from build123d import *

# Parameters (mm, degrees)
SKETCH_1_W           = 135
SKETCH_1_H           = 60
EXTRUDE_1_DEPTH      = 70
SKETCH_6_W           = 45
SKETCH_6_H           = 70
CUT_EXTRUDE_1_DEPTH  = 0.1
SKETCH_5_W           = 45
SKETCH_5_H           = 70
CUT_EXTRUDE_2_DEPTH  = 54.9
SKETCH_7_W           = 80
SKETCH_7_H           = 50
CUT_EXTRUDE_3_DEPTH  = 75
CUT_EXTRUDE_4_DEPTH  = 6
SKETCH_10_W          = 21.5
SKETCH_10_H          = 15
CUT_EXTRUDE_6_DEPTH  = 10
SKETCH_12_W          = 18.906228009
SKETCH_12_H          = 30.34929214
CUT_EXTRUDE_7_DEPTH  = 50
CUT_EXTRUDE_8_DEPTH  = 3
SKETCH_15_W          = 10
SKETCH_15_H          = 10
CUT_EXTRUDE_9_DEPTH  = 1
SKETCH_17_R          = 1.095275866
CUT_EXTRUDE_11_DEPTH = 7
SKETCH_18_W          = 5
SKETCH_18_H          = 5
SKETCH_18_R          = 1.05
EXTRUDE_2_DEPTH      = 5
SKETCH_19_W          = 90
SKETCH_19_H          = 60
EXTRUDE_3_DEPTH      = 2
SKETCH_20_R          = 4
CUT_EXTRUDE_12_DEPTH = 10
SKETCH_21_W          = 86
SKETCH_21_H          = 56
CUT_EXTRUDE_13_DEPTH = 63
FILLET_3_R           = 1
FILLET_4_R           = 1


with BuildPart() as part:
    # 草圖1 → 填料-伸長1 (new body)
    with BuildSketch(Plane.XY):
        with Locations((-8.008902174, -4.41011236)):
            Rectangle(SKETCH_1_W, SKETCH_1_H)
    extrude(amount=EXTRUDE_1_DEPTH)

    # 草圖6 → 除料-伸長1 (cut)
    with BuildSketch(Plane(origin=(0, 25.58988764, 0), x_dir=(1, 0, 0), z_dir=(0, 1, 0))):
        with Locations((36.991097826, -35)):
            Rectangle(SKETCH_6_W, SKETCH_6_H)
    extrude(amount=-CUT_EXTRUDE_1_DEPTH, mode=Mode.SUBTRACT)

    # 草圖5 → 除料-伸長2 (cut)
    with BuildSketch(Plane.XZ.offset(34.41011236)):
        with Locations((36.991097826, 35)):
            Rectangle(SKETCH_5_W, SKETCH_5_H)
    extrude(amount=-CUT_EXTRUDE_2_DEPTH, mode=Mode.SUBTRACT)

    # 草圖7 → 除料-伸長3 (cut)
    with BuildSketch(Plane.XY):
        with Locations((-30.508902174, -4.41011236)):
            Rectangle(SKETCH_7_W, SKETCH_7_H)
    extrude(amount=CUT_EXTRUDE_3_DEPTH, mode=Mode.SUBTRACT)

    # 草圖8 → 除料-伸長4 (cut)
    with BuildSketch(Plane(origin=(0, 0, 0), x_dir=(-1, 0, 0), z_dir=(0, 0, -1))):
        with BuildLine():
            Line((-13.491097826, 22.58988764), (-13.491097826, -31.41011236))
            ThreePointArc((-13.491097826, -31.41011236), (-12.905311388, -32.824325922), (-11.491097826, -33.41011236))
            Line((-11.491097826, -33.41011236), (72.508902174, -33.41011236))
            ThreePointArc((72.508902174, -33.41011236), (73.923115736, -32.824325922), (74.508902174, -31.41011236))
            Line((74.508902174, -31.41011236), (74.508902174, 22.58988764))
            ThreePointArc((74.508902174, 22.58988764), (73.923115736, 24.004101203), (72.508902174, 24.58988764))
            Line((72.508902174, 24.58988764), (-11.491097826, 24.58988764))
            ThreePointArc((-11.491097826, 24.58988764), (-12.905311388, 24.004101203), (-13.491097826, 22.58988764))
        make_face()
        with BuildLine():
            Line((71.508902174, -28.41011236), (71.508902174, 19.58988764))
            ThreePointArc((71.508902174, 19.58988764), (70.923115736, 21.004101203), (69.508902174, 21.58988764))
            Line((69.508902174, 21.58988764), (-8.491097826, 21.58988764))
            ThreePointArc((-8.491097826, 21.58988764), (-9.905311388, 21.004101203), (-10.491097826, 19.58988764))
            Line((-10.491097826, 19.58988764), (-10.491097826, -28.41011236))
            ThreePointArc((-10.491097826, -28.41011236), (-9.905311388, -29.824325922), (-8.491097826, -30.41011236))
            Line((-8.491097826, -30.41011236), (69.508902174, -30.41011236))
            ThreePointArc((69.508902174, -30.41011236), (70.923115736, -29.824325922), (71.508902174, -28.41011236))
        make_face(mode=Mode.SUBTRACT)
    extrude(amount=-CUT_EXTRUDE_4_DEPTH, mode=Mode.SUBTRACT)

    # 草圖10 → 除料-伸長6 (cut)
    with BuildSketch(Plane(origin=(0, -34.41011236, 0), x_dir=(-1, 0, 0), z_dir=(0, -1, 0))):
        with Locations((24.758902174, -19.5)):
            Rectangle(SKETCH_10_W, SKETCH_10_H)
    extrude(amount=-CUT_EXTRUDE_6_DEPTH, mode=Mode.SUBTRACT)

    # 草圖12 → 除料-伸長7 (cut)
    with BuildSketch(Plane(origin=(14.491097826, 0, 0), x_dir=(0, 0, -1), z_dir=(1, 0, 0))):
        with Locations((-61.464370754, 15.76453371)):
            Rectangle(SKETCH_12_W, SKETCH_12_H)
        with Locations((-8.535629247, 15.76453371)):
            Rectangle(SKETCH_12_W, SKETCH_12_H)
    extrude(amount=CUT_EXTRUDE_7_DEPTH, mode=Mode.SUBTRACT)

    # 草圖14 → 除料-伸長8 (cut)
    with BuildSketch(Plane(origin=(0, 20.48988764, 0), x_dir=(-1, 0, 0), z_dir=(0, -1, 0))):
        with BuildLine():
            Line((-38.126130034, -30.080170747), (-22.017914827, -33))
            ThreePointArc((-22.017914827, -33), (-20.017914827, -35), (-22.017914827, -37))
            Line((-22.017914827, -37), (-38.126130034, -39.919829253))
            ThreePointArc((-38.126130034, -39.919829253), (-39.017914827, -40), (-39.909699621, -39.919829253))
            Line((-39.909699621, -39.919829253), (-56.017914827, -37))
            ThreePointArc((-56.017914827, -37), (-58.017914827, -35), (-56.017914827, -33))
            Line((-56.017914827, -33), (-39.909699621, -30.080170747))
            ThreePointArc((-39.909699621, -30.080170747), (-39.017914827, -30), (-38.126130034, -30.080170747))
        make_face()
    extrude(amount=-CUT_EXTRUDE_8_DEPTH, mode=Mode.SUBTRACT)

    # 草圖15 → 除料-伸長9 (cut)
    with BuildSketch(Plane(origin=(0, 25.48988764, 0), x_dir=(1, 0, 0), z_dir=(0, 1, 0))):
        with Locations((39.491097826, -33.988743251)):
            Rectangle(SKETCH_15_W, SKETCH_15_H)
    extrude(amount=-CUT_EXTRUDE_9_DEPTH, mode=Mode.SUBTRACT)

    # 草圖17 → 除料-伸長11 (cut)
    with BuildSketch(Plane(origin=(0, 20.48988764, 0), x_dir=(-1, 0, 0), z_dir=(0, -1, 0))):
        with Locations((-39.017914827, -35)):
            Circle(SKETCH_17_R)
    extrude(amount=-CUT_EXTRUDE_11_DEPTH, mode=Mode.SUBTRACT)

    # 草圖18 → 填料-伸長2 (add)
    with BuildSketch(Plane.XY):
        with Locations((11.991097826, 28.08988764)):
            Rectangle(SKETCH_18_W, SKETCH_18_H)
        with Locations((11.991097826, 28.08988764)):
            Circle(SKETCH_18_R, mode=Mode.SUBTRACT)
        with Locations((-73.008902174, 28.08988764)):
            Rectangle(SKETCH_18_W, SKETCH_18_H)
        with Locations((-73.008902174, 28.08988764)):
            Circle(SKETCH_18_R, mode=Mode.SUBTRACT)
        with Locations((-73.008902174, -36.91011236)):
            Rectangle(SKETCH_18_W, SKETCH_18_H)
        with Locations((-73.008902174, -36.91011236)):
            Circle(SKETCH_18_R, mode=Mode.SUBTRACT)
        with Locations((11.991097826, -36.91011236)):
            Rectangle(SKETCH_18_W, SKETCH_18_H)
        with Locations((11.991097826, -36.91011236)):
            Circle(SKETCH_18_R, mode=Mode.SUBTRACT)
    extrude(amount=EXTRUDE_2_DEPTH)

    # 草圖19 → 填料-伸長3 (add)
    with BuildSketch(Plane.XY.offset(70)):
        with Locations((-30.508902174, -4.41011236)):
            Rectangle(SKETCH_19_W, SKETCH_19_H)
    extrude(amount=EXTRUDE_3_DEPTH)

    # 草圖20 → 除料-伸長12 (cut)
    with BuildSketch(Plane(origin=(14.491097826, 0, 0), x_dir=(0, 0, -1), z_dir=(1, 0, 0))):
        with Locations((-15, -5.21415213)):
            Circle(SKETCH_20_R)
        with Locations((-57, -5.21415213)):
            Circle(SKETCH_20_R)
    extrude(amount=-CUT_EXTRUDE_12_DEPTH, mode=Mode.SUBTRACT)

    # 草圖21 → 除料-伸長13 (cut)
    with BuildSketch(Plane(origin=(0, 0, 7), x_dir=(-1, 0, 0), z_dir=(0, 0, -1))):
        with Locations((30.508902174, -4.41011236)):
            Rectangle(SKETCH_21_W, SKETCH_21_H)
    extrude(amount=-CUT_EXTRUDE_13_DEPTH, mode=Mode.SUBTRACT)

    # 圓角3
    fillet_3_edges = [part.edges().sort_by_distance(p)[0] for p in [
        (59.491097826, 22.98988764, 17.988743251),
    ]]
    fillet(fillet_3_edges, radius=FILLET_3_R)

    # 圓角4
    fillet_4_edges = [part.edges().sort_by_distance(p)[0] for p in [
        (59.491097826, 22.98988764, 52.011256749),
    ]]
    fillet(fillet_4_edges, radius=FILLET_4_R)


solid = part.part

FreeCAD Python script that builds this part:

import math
import FreeCAD as App
import Part
import Sketcher
Q = App.Units.Quantity


def edges_at(feature, points):
    """Names of the edges that pass closest to the given points."""
    edges = feature.Shape.Edges
    near = lambda p: min(range(len(edges)), key=lambda i: edges[i].distToShape(Part.Vertex(*p))[0])
    return sorted({f"Edge{near(p) + 1}" for p in points})

doc = App.newDocument("Part")
body = doc.addObject("PartDesign::Body", "Body")

# Sketch on XY plane
sketch1 = doc.addObject("Sketcher::SketchObject", "Sketch")
body.addObject(sketch1)
sketch1.AttachmentSupport = (doc.XY_Plane, [""])
sketch1.MapMode = "FlatFace"
sketch1.addGeometry(Part.LineSegment(App.Vector(-76, 26, 0), App.Vector(-76, -34, 0)), False)
sketch1.addGeometry(Part.LineSegment(App.Vector(-76, -34, 0), App.Vector(59, -34, 0)), False)
sketch1.addGeometry(Part.LineSegment(App.Vector(59, -34, 0), App.Vector(59, 26, 0)), False)
sketch1.addGeometry(Part.LineSegment(App.Vector(59, 26, 0), App.Vector(-76, 26, 0)), False)
sketch1.addConstraint(Sketcher.Constraint("Coincident", 0, 2, 1, 1))
sketch1.addConstraint(Sketcher.Constraint("Coincident", 1, 2, 2, 1))
sketch1.addConstraint(Sketcher.Constraint("Coincident", 2, 2, 3, 1))
sketch1.addConstraint(Sketcher.Constraint("Coincident", 3, 2, 0, 1))
sketch1.addConstraint(Sketcher.Constraint("Vertical", 0))
sketch1.addConstraint(Sketcher.Constraint("Horizontal", 1))
sketch1.addConstraint(Sketcher.Constraint("Vertical", 2))
sketch1.addConstraint(Sketcher.Constraint("Horizontal", 3))
sketch1.addConstraint(Sketcher.Constraint("DistanceX", 1, 1, 1, 2, Q("135 mm")))
sketch1.addConstraint(Sketcher.Constraint("DistanceY", 0, 2, 0, 1, Q("60 mm")))
sketch1.addConstraint(Sketcher.Constraint("DistanceX", 0, 2, -1, 1, Q("75.508902 mm")))
sketch1.addConstraint(Sketcher.Constraint("DistanceY", 0, 2, -1, 1, Q("34.410112 mm")))
pad1 = doc.addObject("PartDesign::Pad", "Pad")
body.addObject(pad1)
pad1.Profile = sketch1
pad1.Length = 70

# Sketch on XZ plane
sketch2 = doc.addObject("Sketcher::SketchObject", "Sketch001")
body.addObject(sketch2)
sketch2.AttachmentSupport = (doc.XZ_Plane, [""])
sketch2.MapMode = "FlatFace"
sketch2.AttachmentOffset = App.Placement(App.Vector(0, 0, -25.589888), App.Rotation())
sketch2.addGeometry(Part.LineSegment(App.Vector(14, 0, 0), App.Vector(14, 70, 0)), False)
sketch2.addGeometry(Part.LineSegment(App.Vector(14, 70, 0), App.Vector(59, 70, 0)), False)
sketch2.addGeometry(Part.LineSegment(App.Vector(59, 70, 0), App.Vector(59, 0, 0)), False)
sketch2.addGeometry(Part.LineSegment(App.Vector(59, 0, 0), App.Vector(14, 0, 0)), False)
sketch2.addConstraint(Sketcher.Constraint("Coincident", 0, 2, 1, 1))
sketch2.addConstraint(Sketcher.Constraint("Coincident", 1, 2, 2, 1))
sketch2.addConstraint(Sketcher.Constraint("Coincident", 2, 2, 3, 1))
sketch2.addConstraint(Sketcher.Constraint("Coincident", 3, 2, 0, 1))
sketch2.addConstraint(Sketcher.Constraint("Vertical", 0))
sketch2.addConstraint(Sketcher.Constraint("Horizontal", 1))
sketch2.addConstraint(Sketcher.Constraint("Vertical", 2))
sketch2.addConstraint(Sketcher.Constraint("Horizontal", 3))
sketch2.addConstraint(Sketcher.Constraint("PointOnObject", 2, 2, -1))
sketch2.addConstraint(Sketcher.Constraint("DistanceX", 1, 1, 1, 2, Q("45 mm")))
sketch2.addConstraint(Sketcher.Constraint("DistanceY", 0, 1, 0, 2, Q("70 mm")))
sketch2.addConstraint(Sketcher.Constraint("DistanceX", -1, 1, 0, 2, Q("14.491098 mm")))
pocket1 = doc.addObject("PartDesign::Pocket", "Pocket")
body.addObject(pocket1)
pocket1.Profile = sketch2
pocket1.Length = 0.1
pocket1.Reversed = True

# Sketch on XZ plane
sketch3 = doc.addObject("Sketcher::SketchObject", "Sketch002")
body.addObject(sketch3)
sketch3.AttachmentSupport = (doc.XZ_Plane, [""])
sketch3.MapMode = "FlatFace"
sketch3.AttachmentOffset = App.Placement(App.Vector(0, 0, 34.410112), App.Rotation())
sketch3.addGeometry(Part.LineSegment(App.Vector(14, 70, 0), App.Vector(14, 0, 0)), False)
sketch3.addGeometry(Part.LineSegment(App.Vector(14, 0, 0), App.Vector(59, 0, 0)), False)
sketch3.addGeometry(Part.LineSegment(App.Vector(59, 0, 0), App.Vector(59, 70, 0)), False)
sketch3.addGeometry(Part.LineSegment(App.Vector(59, 70, 0), App.Vector(14, 70, 0)), False)
sketch3.addConstraint(Sketcher.Constraint("Coincident", 0, 2, 1, 1))
sketch3.addConstraint(Sketcher.Constraint("Coincident", 1, 2, 2, 1))
sketch3.addConstraint(Sketcher.Constraint("Coincident", 2, 2, 3, 1))
sketch3.addConstraint(Sketcher.Constraint("Coincident", 3, 2, 0, 1))
sketch3.addConstraint(Sketcher.Constraint("Vertical", 0))
sketch3.addConstraint(Sketcher.Constraint("Horizontal", 1))
sketch3.addConstraint(Sketcher.Constraint("Vertical", 2))
sketch3.addConstraint(Sketcher.Constraint("Horizontal", 3))
sketch3.addConstraint(Sketcher.Constraint("PointOnObject", 0, 2, -1))
sketch3.addConstraint(Sketcher.Constraint("DistanceX", 1, 1, 1, 2, Q("45 mm")))
sketch3.addConstraint(Sketcher.Constraint("DistanceY", 0, 2, 0, 1, Q("70 mm")))
sketch3.addConstraint(Sketcher.Constraint("DistanceX", -1, 1, 0, 2, Q("14.491098 mm")))
pocket2 = doc.addObject("PartDesign::Pocket", "Pocket001")
body.addObject(pocket2)
pocket2.Profile = sketch3
pocket2.Length = 54.9

# Sketch on XY plane
sketch4 = doc.addObject("Sketcher::SketchObject", "Sketch003")
body.addObject(sketch4)
sketch4.AttachmentSupport = (doc.XY_Plane, [""])
sketch4.MapMode = "FlatFace"
sketch4.addGeometry(Part.LineSegment(App.Vector(-71, 21, 0), App.Vector(-71, -29, 0)), False)
sketch4.addGeometry(Part.LineSegment(App.Vector(-71, -29, 0), App.Vector(9, -29, 0)), False)
sketch4.addGeometry(Part.LineSegment(App.Vector(9, -29, 0), App.Vector(9, 21, 0)), False)
sketch4.addGeometry(Part.LineSegment(App.Vector(9, 21, 0), App.Vector(-71, 21, 0)), False)
sketch4.addConstraint(Sketcher.Constraint("Coincident", 0, 2, 1, 1))
sketch4.addConstraint(Sketcher.Constraint("Coincident", 1, 2, 2, 1))
sketch4.addConstraint(Sketcher.Constraint("Coincident", 2, 2, 3, 1))
sketch4.addConstraint(Sketcher.Constraint("Coincident", 3, 2, 0, 1))
sketch4.addConstraint(Sketcher.Constraint("Vertical", 0))
sketch4.addConstraint(Sketcher.Constraint("Horizontal", 1))
sketch4.addConstraint(Sketcher.Constraint("Vertical", 2))
sketch4.addConstraint(Sketcher.Constraint("Horizontal", 3))
sketch4.addConstraint(Sketcher.Constraint("DistanceX", 1, 1, 1, 2, Q("80 mm")))
sketch4.addConstraint(Sketcher.Constraint("DistanceY", 0, 2, 0, 1, Q("50 mm")))
sketch4.addConstraint(Sketcher.Constraint("DistanceX", 0, 2, -1, 1, Q("70.508902 mm")))
sketch4.addConstraint(Sketcher.Constraint("DistanceY", 0, 2, -1, 1, Q("29.410112 mm")))
pocket3 = doc.addObject("PartDesign::Pocket", "Pocket002")
body.addObject(pocket3)
pocket3.Profile = sketch4
pocket3.Length = 75
pocket3.Reversed = True

# Sketch on XY plane
sketch5 = doc.addObject("Sketcher::SketchObject", "Sketch004")
body.addObject(sketch5)
sketch5.AttachmentSupport = (doc.XY_Plane, [""])
sketch5.MapMode = "FlatFace"
sketch5.addGeometry(Part.LineSegment(App.Vector(13.5, 22.6, 0), App.Vector(13.5, -31.4, 0)), False)
sketch5.addGeometry(Part.ArcOfCircle(Part.Circle(App.Vector(11.5, -31.4, 0), App.Vector(0, 0, 1), 2), math.radians(-90), math.radians(0)), False)
sketch5.addGeometry(Part.LineSegment(App.Vector(11.5, -33.4, 0), App.Vector(-72.5, -33.4, 0)), False)
sketch5.addGeometry(Part.ArcOfCircle(Part.Circle(App.Vector(-72.5, -31.4, 0), App.Vector(0, 0, 1), 2), math.radians(-180), math.radians(-90)), False)
sketch5.addGeometry(Part.LineSegment(App.Vector(-74.5, -31.4, 0), App.Vector(-74.5, 22.6, 0)), False)
sketch5.addGeometry(Part.ArcOfCircle(Part.Circle(App.Vector(-72.5, 22.6, 0), App.Vector(0, 0, 1), 2), math.radians(90), math.radians(180)), False)
sketch5.addGeometry(Part.LineSegment(App.Vector(-72.5, 24.6, 0), App.Vector(11.5, 24.6, 0)), False)
sketch5.addGeometry(Part.ArcOfCircle(Part.Circle(App.Vector(11.5, 22.6, 0), App.Vector(0, 0, 1), 2), math.radians(0), math.radians(90)), False)
sketch5.addGeometry(Part.LineSegment(App.Vector(-71.5, 19.6, 0), App.Vector(-71.5, -28.4, 0)), False)
sketch5.addGeometry(Part.ArcOfCircle(Part.Circle(App.Vector(-69.5, -28.4, 0), App.Vector(0, 0, 1), 2), math.radians(-180), math.radians(-90)), False)
sketch5.addGeometry(Part.LineSegment(App.Vector(-69.5, -30.4, 0), App.Vector(8.5, -30.4, 0)), False)
sketch5.addGeometry(Part.ArcOfCircle(Part.Circle(App.Vector(8.5, -28.4, 0), App.Vector(0, 0, 1), 2), math.radians(-90), math.radians(0)), False)
sketch5.addGeometry(Part.LineSegment(App.Vector(10.5, -28.4, 0), App.Vector(10.5, 19.6, 0)), False)
sketch5.addGeometry(Part.ArcOfCircle(Part.Circle(App.Vector(8.5, 19.6, 0), App.Vector(0, 0, 1), 2), math.radians(0), math.radians(90)), False)
sketch5.addGeometry(Part.LineSegment(App.Vector(8.5, 21.6, 0), App.Vector(-69.5, 21.6, 0)), False)
sketch5.addGeometry(Part.ArcOfCircle(Part.Circle(App.Vector(-69.5, 19.6, 0), App.Vector(0, 0, 1), 2), math.radians(90), math.radians(180)), False)
sketch5.addConstraint(Sketcher.Constraint("Tangent", 0, 2, 1, 2))
sketch5.addConstraint(Sketcher.Constraint("Tangent", 1, 1, 2, 1))
sketch5.addConstraint(Sketcher.Constraint("Tangent", 2, 2, 3, 2))
sketch5.addConstraint(Sketcher.Constraint("Tangent", 3, 1, 4, 1))
sketch5.addConstraint(Sketcher.Constraint("Tangent", 4, 2, 5, 2))
sketch5.addConstraint(Sketcher.Constraint("Tangent", 5, 1, 6, 1))
sketch5.addConstraint(Sketcher.Constraint("Tangent", 6, 2, 7, 2))
sketch5.addConstraint(Sketcher.Constraint("Tangent", 7, 1, 0, 1))
sketch5.addConstraint(Sketcher.Constraint("Tangent", 8, 2, 9, 1))
sketch5.addConstraint(Sketcher.Constraint("Tangent", 9, 2, 10, 1))
sketch5.addConstraint(Sketcher.Constraint("Tangent", 10, 2, 11, 1))
sketch5.addConstraint(Sketcher.Constraint("Tangent", 11, 2, 12, 1))
sketch5.addConstraint(Sketcher.Constraint("Tangent", 12, 2, 13, 1))
sketch5.addConstraint(Sketcher.Constraint("Tangent", 13, 2, 14, 1))
sketch5.addConstraint(Sketcher.Constraint("Tangent", 14, 2, 15, 1))
sketch5.addConstraint(Sketcher.Constraint("Tangent", 15, 2, 8, 1))
sketch5.addConstraint(Sketcher.Constraint("Vertical", 0))
sketch5.addConstraint(Sketcher.Constraint("Horizontal", 2))
sketch5.addConstraint(Sketcher.Constraint("Vertical", 4))
sketch5.addConstraint(Sketcher.Constraint("Horizontal", 6))
sketch5.addConstraint(Sketcher.Constraint("Vertical", 8))
sketch5.addConstraint(Sketcher.Constraint("Horizontal", 10))
sketch5.addConstraint(Sketcher.Constraint("Vertical", 12))
sketch5.addConstraint(Sketcher.Constraint("Horizontal", 14))
sketch5.addConstraint(Sketcher.Constraint("Equal", 1, 3))
sketch5.addConstraint(Sketcher.Constraint("Equal", 3, 5))
sketch5.addConstraint(Sketcher.Constraint("Equal", 5, 7))
sketch5.addConstraint(Sketcher.Constraint("Equal", 7, 9))
sketch5.addConstraint(Sketcher.Constraint("Equal", 9, 11))
sketch5.addConstraint(Sketcher.Constraint("Equal", 11, 13))
sketch5.addConstraint(Sketcher.Constraint("Equal", 13, 15))
sketch5.addConstraint(Sketcher.Constraint("Radius", 1, Q("2 mm")))
sketch5.addConstraint(Sketcher.Constraint("DistanceX", 2, 2, 2, 1, Q("84 mm")))
sketch5.addConstraint(Sketcher.Constraint("DistanceX", 10, 1, 10, 2, Q("78 mm")))
sketch5.addConstraint(Sketcher.Constraint("DistanceY", 0, 2, 0, 1, Q("54 mm")))
sketch5.addConstraint(Sketcher.Constraint("DistanceY", 8, 2, 8, 1, Q("48 mm")))
sketch5.addConstraint(Sketcher.Constraint("DistanceX", 3, 3, 9, 3, Q("3 mm")))
sketch5.addConstraint(Sketcher.Constraint("DistanceY", 3, 3, 9, 3, Q("3 mm")))
sketch5.addConstraint(Sketcher.Constraint("DistanceX", -1, 1, 1, 3, Q("11.491098 mm")))
sketch5.addConstraint(Sketcher.Constraint("DistanceY", 1, 3, -1, 1, Q("31.410112 mm")))
pocket4 = doc.addObject("PartDesign::Pocket", "Pocket003")
body.addObject(pocket4)
pocket4.Profile = sketch5
pocket4.Length = 6
pocket4.Reversed = True

# Sketch on XZ plane
sketch6 = doc.addObject("Sketcher::SketchObject", "Sketch005")
body.addObject(sketch6)
sketch6.AttachmentSupport = (doc.XZ_Plane, [""])
sketch6.MapMode = "FlatFace"
sketch6.AttachmentOffset = App.Placement(App.Vector(0, 0, 34.410112), App.Rotation())
sketch6.addGeometry(Part.LineSegment(App.Vector(-14, 12, 0), App.Vector(-14, 27, 0)), False)
sketch6.addGeometry(Part.LineSegment(App.Vector(-14, 27, 0), App.Vector(-36, 27, 0)), False)
sketch6.addGeometry(Part.LineSegment(App.Vector(-36, 27, 0), App.Vector(-36, 12, 0)), False)
sketch6.addGeometry(Part.LineSegment(App.Vector(-36, 12, 0), App.Vector(-14, 12, 0)), False)
sketch6.addConstraint(Sketcher.Constraint("Coincident", 0, 2, 1, 1))
sketch6.addConstraint(Sketcher.Constraint("Coincident", 1, 2, 2, 1))
sketch6.addConstraint(Sketcher.Constraint("Coincident", 2, 2, 3, 1))
sketch6.addConstraint(Sketcher.Constraint("Coincident", 3, 2, 0, 1))
sketch6.addConstraint(Sketcher.Constraint("Vertical", 0))
sketch6.addConstraint(Sketcher.Constraint("Horizontal", 1))
sketch6.addConstraint(Sketcher.Constraint("Vertical", 2))
sketch6.addConstraint(Sketcher.Constraint("Horizontal", 3))
sketch6.addConstraint(Sketcher.Constraint("DistanceY", 0, 1, 0, 2, Q("15 mm")))
sketch6.addConstraint(Sketcher.Constraint("DistanceX", 1, 2, 1, 1, Q("21.5 mm")))
sketch6.addConstraint(Sketcher.Constraint("DistanceY", -1, 1, 0, 2, Q("27 mm")))
sketch6.addConstraint(Sketcher.Constraint("DistanceX", 0, 2, -1, 1, Q("14.008902 mm")))
pocket5 = doc.addObject("PartDesign::Pocket", "Pocket004")
body.addObject(pocket5)
pocket5.Profile = sketch6
pocket5.Length = 10

# Sketch on YZ plane
sketch7 = doc.addObject("Sketcher::SketchObject", "Sketch006")
body.addObject(sketch7)
sketch7.AttachmentSupport = (doc.YZ_Plane, [""])
sketch7.MapMode = "FlatFace"
sketch7.AttachmentOffset = App.Placement(App.Vector(0, 0, 14.491098), App.Rotation())
sketch7.addGeometry(Part.LineSegment(App.Vector(31, 71, 0), App.Vector(1, 71, 0)), False)
sketch7.addGeometry(Part.LineSegment(App.Vector(1, 71, 0), App.Vector(1, 52, 0)), False)
sketch7.addGeometry(Part.LineSegment(App.Vector(1, 52, 0), App.Vector(31, 52, 0)), False)
sketch7.addGeometry(Part.LineSegment(App.Vector(31, 52, 0), App.Vector(31, 71, 0)), False)
sketch7.addGeometry(Part.LineSegment(App.Vector(31, 18, 0), App.Vector(1, 18, 0)), False)
sketch7.addGeometry(Part.LineSegment(App.Vector(1, 18, 0), App.Vector(1, -1, 0)), False)
sketch7.addGeometry(Part.LineSegment(App.Vector(1, -1, 0), App.Vector(31, -1, 0)), False)
sketch7.addGeometry(Part.LineSegment(App.Vector(31, -1, 0), App.Vector(31, 18, 0)), False)
sketch7.addConstraint(Sketcher.Constraint("Coincident", 0, 2, 1, 1))
sketch7.addConstraint(Sketcher.Constraint("Coincident", 1, 2, 2, 1))
sketch7.addConstraint(Sketcher.Constraint("Coincident", 2, 2, 3, 1))
sketch7.addConstraint(Sketcher.Constraint("Coincident", 3, 2, 0, 1))
sketch7.addConstraint(Sketcher.Constraint("Coincident", 4, 2, 5, 1))
sketch7.addConstraint(Sketcher.Constraint("Coincident", 5, 2, 6, 1))
sketch7.addConstraint(Sketcher.Constraint("Coincident", 6, 2, 7, 1))
sketch7.addConstraint(Sketcher.Constraint("Coincident", 7, 2, 4, 1))
sketch7.addConstraint(Sketcher.Constraint("Horizontal", 0))
sketch7.addConstraint(Sketcher.Constraint("Vertical", 1))
sketch7.addConstraint(Sketcher.Constraint("Horizontal", 2))
sketch7.addConstraint(Sketcher.Constraint("Vertical", 3))
sketch7.addConstraint(Sketcher.Constraint("Horizontal", 4))
sketch7.addConstraint(Sketcher.Constraint("Vertical", 5))
sketch7.addConstraint(Sketcher.Constraint("Horizontal", 6))
sketch7.addConstraint(Sketcher.Constraint("Vertical", 7))
sketch7.addConstraint(Sketcher.Constraint("Vertical", 1, 2, 4, 2))
sketch7.addConstraint(Sketcher.Constraint("Vertical", 3, 2, 6, 2))
sketch7.addConstraint(Sketcher.Constraint("Equal", 3, 5))
sketch7.addConstraint(Sketcher.Constraint("DistanceY", 1, 2, 1, 1, Q("18.906228 mm")))
sketch7.addConstraint(Sketcher.Constraint("DistanceX", 0, 2, 0, 1, Q("30.349292 mm")))
sketch7.addConstraint(Sketcher.Constraint("DistanceX", -1, 1, 2, 2, Q("30.93918 mm")))
sketch7.addConstraint(Sketcher.Constraint("DistanceY", 4, 2, 0, 2, Q("52.928742 mm")))
sketch7.addConstraint(Sketcher.Constraint("DistanceY", -1, 1, 0, 2, Q("70.917485 mm")))
pocket6 = doc.addObject("PartDesign::Pocket", "Pocket005")
body.addObject(pocket6)
pocket6.Profile = sketch7
pocket6.Length = 50
pocket6.Reversed = True

# Sketch on XZ plane
sketch8 = doc.addObject("Sketcher::SketchObject", "Sketch007")
body.addObject(sketch8)
sketch8.AttachmentSupport = (doc.XZ_Plane, [""])
sketch8.MapMode = "FlatFace"
sketch8.AttachmentOffset = App.Placement(App.Vector(0, 0, -20.489888), App.Rotation())
sketch8.addGeometry(Part.LineSegment(App.Vector(22, 33, 0), App.Vector(38.1, 30.1, 0)), False)
sketch8.addGeometry(Part.ArcOfCircle(Part.Circle(App.Vector(39, 35, 0), App.Vector(0, 0, 1), 5), math.radians(-100), math.radians(-80)), False)
sketch8.addGeometry(Part.LineSegment(App.Vector(39.9, 30.1, 0), App.Vector(56, 33, 0)), False)
sketch8.addGeometry(Part.ArcOfCircle(Part.Circle(App.Vector(56, 35, 0), App.Vector(0, 0, 1), 2), math.radians(-90), math.radians(90)), False)
sketch8.addGeometry(Part.LineSegment(App.Vector(56, 37, 0), App.Vector(39.9, 39.9, 0)), False)
sketch8.addGeometry(Part.ArcOfCircle(Part.Circle(App.Vector(39, 35, 0), App.Vector(0, 0, 1), 5), math.radians(80), math.radians(100)), False)
sketch8.addGeometry(Part.LineSegment(App.Vector(38.1, 39.9, 0), App.Vector(22, 37, 0)), False)
sketch8.addGeometry(Part.ArcOfCircle(Part.Circle(App.Vector(22, 35, 0), App.Vector(0, 0, 1), 2), math.radians(90), math.radians(270)), False)
sketch8.addConstraint(Sketcher.Constraint("Tangent", 0, 2, 1, 1))
sketch8.addConstraint(Sketcher.Constraint("Tangent", 1, 2, 2, 1))
sketch8.addConstraint(Sketcher.Constraint("Coincident", 2, 2, 3, 1))
sketch8.addConstraint(Sketcher.Constraint("Coincident", 3, 2, 4, 1))
sketch8.addConstraint(Sketcher.Constraint("Tangent", 4, 2, 5, 1))
sketch8.addConstraint(Sketcher.Constraint("Tangent", 5, 2, 6, 1))
sketch8.addConstraint(Sketcher.Constraint("Coincident", 6, 2, 7, 1))
sketch8.addConstraint(Sketcher.Constraint("Coincident", 7, 2, 0, 1))
sketch8.addConstraint(Sketcher.Constraint("Coincident", 5, 3, 1, 3))
sketch8.addConstraint(Sketcher.Constraint("Equal", 1, 5))
sketch8.addConstraint(Sketcher.Constraint("Equal", 3, 7))
sketch8.addConstraint(Sketcher.Constraint("Parallel", 0, 4))
sketch8.addConstraint(Sketcher.Constraint("Parallel", 2, 6))
sketch8.addConstraint(Sketcher.Constraint("Horizontal", 1, 3, 3, 3))
sketch8.addConstraint(Sketcher.Constraint("Horizontal", 5, 3, 7, 3))
sketch8.addConstraint(Sketcher.Constraint("Horizontal", 0, 2, 1, 2))
sketch8.addConstraint(Sketcher.Constraint("Vertical", 3, 3, 2, 2))
sketch8.addConstraint(Sketcher.Constraint("Vertical", 7, 3, 6, 2))
sketch8.addConstraint(Sketcher.Constraint("Radius", 1, Q("5 mm")))
sketch8.addConstraint(Sketcher.Constraint("Radius", 3, Q("2 mm")))
sketch8.addConstraint(Sketcher.Constraint("DistanceY", -1, 1, 1, 3, Q("35 mm")))
sketch8.addConstraint(Sketcher.Constraint("DistanceX", 1, 3, 3, 3, Q("17 mm")))
sketch8.addConstraint(Sketcher.Constraint("DistanceX", -1, 1, 1, 2, Q("39.9097 mm")))
pocket7 = doc.addObject("PartDesign::Pocket", "Pocket006")
body.addObject(pocket7)
pocket7.Profile = sketch8
pocket7.Length = 3

# Sketch on XZ plane
sketch9 = doc.addObject("Sketcher::SketchObject", "Sketch008")
body.addObject(sketch9)
sketch9.AttachmentSupport = (doc.XZ_Plane, [""])
sketch9.MapMode = "FlatFace"
sketch9.AttachmentOffset = App.Placement(App.Vector(0, 0, -25.489888), App.Rotation())
sketch9.addGeometry(Part.LineSegment(App.Vector(34, 29, 0), App.Vector(34, 39, 0)), False)
sketch9.addGeometry(Part.LineSegment(App.Vector(34, 39, 0), App.Vector(44, 39, 0)), False)
sketch9.addGeometry(Part.LineSegment(App.Vector(44, 39, 0), App.Vector(44, 29, 0)), False)
sketch9.addGeometry(Part.LineSegment(App.Vector(44, 29, 0), App.Vector(34, 29, 0)), False)
sketch9.addConstraint(Sketcher.Constraint("Coincident", 0, 2, 1, 1))
sketch9.addConstraint(Sketcher.Constraint("Coincident", 1, 2, 2, 1))
sketch9.addConstraint(Sketcher.Constraint("Coincident", 2, 2, 3, 1))
sketch9.addConstraint(Sketcher.Constraint("Coincident", 3, 2, 0, 1))
sketch9.addConstraint(Sketcher.Constraint("Vertical", 0))
sketch9.addConstraint(Sketcher.Constraint("Horizontal", 1))
sketch9.addConstraint(Sketcher.Constraint("Vertical", 2))
sketch9.addConstraint(Sketcher.Constraint("Horizontal", 3))
sketch9.addConstraint(Sketcher.Constraint("Equal", 3, 0))
sketch9.addConstraint(Sketcher.Constraint("DistanceX", 1, 1, 1, 2, Q("10 mm")))
sketch9.addConstraint(Sketcher.Constraint("DistanceX", -1, 1, 0, 2, Q("34.491098 mm")))
sketch9.addConstraint(Sketcher.Constraint("DistanceY", -1, 1, 0, 2, Q("38.988743 mm")))
pocket8 = doc.addObject("PartDesign::Pocket", "Pocket007")
body.addObject(pocket8)
pocket8.Profile = sketch9
pocket8.Length = 1
pocket8.Reversed = True

# Sketch on XZ plane
sketch10 = doc.addObject("Sketcher::SketchObject", "Sketch009")
body.addObject(sketch10)
sketch10.AttachmentSupport = (doc.XZ_Plane, [""])
sketch10.MapMode = "FlatFace"
sketch10.AttachmentOffset = App.Placement(App.Vector(0, 0, -20.489888), App.Rotation())
sketch10.addGeometry(Part.Circle(App.Vector(39, 35, 0), App.Vector(0, 0, 1), 1.1), False)
sketch10.addConstraint(Sketcher.Constraint("DistanceY", -1, 1, 0, 3, Q("35 mm")))
sketch10.addConstraint(Sketcher.Constraint("Diameter", 0, Q("2.190552 mm")))
sketch10.addConstraint(Sketcher.Constraint("DistanceX", -1, 1, 0, 3, Q("39.017915 mm")))
pocket9 = doc.addObject("PartDesign::Pocket", "Pocket008")
body.addObject(pocket9)
pocket9.Profile = sketch10
pocket9.Length = 7

# Sketch on XY plane
sketch11 = doc.addObject("Sketcher::SketchObject", "Sketch010")
body.addObject(sketch11)
sketch11.AttachmentSupport = (doc.XY_Plane, [""])
sketch11.MapMode = "FlatFace"
sketch11.addGeometry(Part.LineSegment(App.Vector(9.5, 30.6, 0), App.Vector(9.5, 25.6, 0)), False)
sketch11.addGeometry(Part.LineSegment(App.Vector(9.5, 25.6, 0), App.Vector(14.5, 25.6, 0)), False)
sketch11.addGeometry(Part.LineSegment(App.Vector(14.5, 25.6, 0), App.Vector(14.5, 30.6, 0)), False)
sketch11.addGeometry(Part.LineSegment(App.Vector(14.5, 30.6, 0), App.Vector(9.5, 30.6, 0)), False)
sketch11.addGeometry(Part.Circle(App.Vector(12, 28.1, 0), App.Vector(0, 0, 1), 1.1), False)
sketch11.addGeometry(Part.LineSegment(App.Vector(-75.5, 30.6, 0), App.Vector(-75.5, 25.6, 0)), False)
sketch11.addGeometry(Part.LineSegment(App.Vector(-75.5, 25.6, 0), App.Vector(-70.5, 25.6, 0)), False)
sketch11.addGeometry(Part.LineSegment(App.Vector(-70.5, 25.6, 0), App.Vector(-70.5, 30.6, 0)), False)
sketch11.addGeometry(Part.LineSegment(App.Vector(-70.5, 30.6, 0), App.Vector(-75.5, 30.6, 0)), False)
sketch11.addGeometry(Part.Circle(App.Vector(-73, 28.1, 0), App.Vector(0, 0, 1), 1.1), False)
sketch11.addGeometry(Part.LineSegment(App.Vector(-75.5, -34.4, 0), App.Vector(-75.5, -39.4, 0)), False)
sketch11.addGeometry(Part.LineSegment(App.Vector(-75.5, -39.4, 0), App.Vector(-70.5, -39.4, 0)), False)
sketch11.addGeometry(Part.LineSegment(App.Vector(-70.5, -39.4, 0), App.Vector(-70.5, -34.4, 0)), False)
sketch11.addGeometry(Part.LineSegment(App.Vector(-70.5, -34.4, 0), App.Vector(-75.5, -34.4, 0)), False)
sketch11.addGeometry(Part.Circle(App.Vector(-73, -36.9, 0), App.Vector(0, 0, 1), 1.1), False)
sketch11.addGeometry(Part.LineSegment(App.Vector(9.5, -34.4, 0), App.Vector(9.5, -39.4, 0)), False)
sketch11.addGeometry(Part.LineSegment(App.Vector(9.5, -39.4, 0), App.Vector(14.5, -39.4, 0)), False)
sketch11.addGeometry(Part.LineSegment(App.Vector(14.5, -39.4, 0), App.Vector(14.5, -34.4, 0)), False)
sketch11.addGeometry(Part.LineSegment(App.Vector(14.5, -34.4, 0), App.Vector(9.5, -34.4, 0)), False)
sketch11.addGeometry(Part.Circle(App.Vector(12, -36.9, 0), App.Vector(0, 0, 1), 1.1), False)
sketch11.addConstraint(Sketcher.Constraint("Coincident", 0, 2, 1, 1))
sketch11.addConstraint(Sketcher.Constraint("Coincident", 1, 2, 2, 1))
sketch11.addConstraint(Sketcher.Constraint("Coincident", 2, 2, 3, 1))
sketch11.addConstraint(Sketcher.Constraint("Coincident", 3, 2, 0, 1))
sketch11.addConstraint(Sketcher.Constraint("Coincident", 5, 2, 6, 1))
sketch11.addConstraint(Sketcher.Constraint("Coincident", 6, 2, 7, 1))
sketch11.addConstraint(Sketcher.Constraint("Coincident", 7, 2, 8, 1))
sketch11.addConstraint(Sketcher.Constraint("Coincident", 8, 2, 5, 1))
sketch11.addConstraint(Sketcher.Constraint("Coincident", 10, 2, 11, 1))
sketch11.addConstraint(Sketcher.Constraint("Coincident", 11, 2, 12, 1))
sketch11.addConstraint(Sketcher.Constraint("Coincident", 12, 2, 13, 1))
sketch11.addConstraint(Sketcher.Constraint("Coincident", 13, 2, 10, 1))
sketch11.addConstraint(Sketcher.Constraint("Coincident", 15, 2, 16, 1))
sketch11.addConstraint(Sketcher.Constraint("Coincident", 16, 2, 17, 1))
sketch11.addConstraint(Sketcher.Constraint("Coincident", 17, 2, 18, 1))
sketch11.addConstraint(Sketcher.Constraint("Coincident", 18, 2, 15, 1))
sketch11.addConstraint(Sketcher.Constraint("Vertical", 0))
sketch11.addConstraint(Sketcher.Constraint("Horizontal", 1))
sketch11.addConstraint(Sketcher.Constraint("Vertical", 2))
sketch11.addConstraint(Sketcher.Constraint("Horizontal", 3))
sketch11.addConstraint(Sketcher.Constraint("Vertical", 5))
sketch11.addConstraint(Sketcher.Constraint("Horizontal", 6))
sketch11.addConstraint(Sketcher.Constraint("Vertical", 7))
sketch11.addConstraint(Sketcher.Constraint("Horizontal", 8))
sketch11.addConstraint(Sketcher.Constraint("Vertical", 10))
sketch11.addConstraint(Sketcher.Constraint("Horizontal", 11))
sketch11.addConstraint(Sketcher.Constraint("Vertical", 12))
sketch11.addConstraint(Sketcher.Constraint("Horizontal", 13))
sketch11.addConstraint(Sketcher.Constraint("Vertical", 15))
sketch11.addConstraint(Sketcher.Constraint("Horizontal", 16))
sketch11.addConstraint(Sketcher.Constraint("Vertical", 17))
sketch11.addConstraint(Sketcher.Constraint("Horizontal", 18))
sketch11.addConstraint(Sketcher.Constraint("Equal", 4, 9))
sketch11.addConstraint(Sketcher.Constraint("Equal", 9, 14))
sketch11.addConstraint(Sketcher.Constraint("Equal", 14, 19))
sketch11.addConstraint(Sketcher.Constraint("Horizontal", 4, 3, 9, 3))
sketch11.addConstraint(Sketcher.Constraint("Horizontal", 14, 3, 19, 3))
sketch11.addConstraint(Sketcher.Constraint("Horizontal", 1, 2, 5, 2))
sketch11.addConstraint(Sketcher.Constraint("Horizontal", 3, 2, 7, 2))
sketch11.addConstraint(Sketcher.Constraint("Horizontal", 11, 2, 15, 2))
sketch11.addConstraint(Sketcher.Constraint("Horizontal", 13, 2, 17, 2))
sketch11.addConstraint(Sketcher.Constraint("Vertical", 9, 3, 14, 3))
sketch11.addConstraint(Sketcher.Constraint("Vertical", 4, 3, 19, 3))
sketch11.addConstraint(Sketcher.Constraint("Vertical", 8, 2, 10, 2))
sketch11.addConstraint(Sketcher.Constraint("Vertical", 7, 2, 11, 2))
sketch11.addConstraint(Sketcher.Constraint("Vertical", 3, 2, 15, 2))
sketch11.addConstraint(Sketcher.Constraint("Vertical", 2, 2, 16, 2))
sketch11.addConstraint(Sketcher.Constraint("Equal", 3, 6))
sketch11.addConstraint(Sketcher.Constraint("Equal", 18, 0))
sketch11.addConstraint(Sketcher.Constraint("Equal", 7, 10))
sketch11.addConstraint(Sketcher.Constraint("Diameter", 4, Q("2.1 mm")))
sketch11.addConstraint(Sketcher.Constraint("DistanceX", 1, 1, 1, 2, Q("5 mm")))
sketch11.addConstraint(Sketcher.Constraint("DistanceX", 9, 3, 4, 3, Q("85 mm")))
sketch11.addConstraint(Sketcher.Constraint("DistanceY", 14, 3, 9, 3, Q("65 mm")))
sketch11.addConstraint(Sketcher.Constraint("DistanceX", 5, 2, 0, 2, Q("85 mm")))
sketch11.addConstraint(Sketcher.Constraint("DistanceY", 10, 2, 5, 2, Q("65 mm")))
sketch11.addConstraint(Sketcher.Constraint("DistanceX", 0, 2, 4, 3, Q("2.5 mm")))
sketch11.addConstraint(Sketcher.Constraint("DistanceY", 0, 2, 4, 3, Q("2.5 mm")))
sketch11.addConstraint(Sketcher.Constraint("DistanceX", -1, 1, 4, 3, Q("11.991098 mm")))
sketch11.addConstraint(Sketcher.Constraint("DistanceY", -1, 1, 4, 3, Q("28.089888 mm")))
pad2 = doc.addObject("PartDesign::Pad", "Pad001")
body.addObject(pad2)
pad2.Profile = sketch11
pad2.Length = 5

# Sketch on XY plane
sketch12 = doc.addObject("Sketcher::SketchObject", "Sketch011")
body.addObject(sketch12)
sketch12.AttachmentSupport = (doc.XY_Plane, [""])
sketch12.MapMode = "FlatFace"
sketch12.AttachmentOffset = App.Placement(App.Vector(0, 0, 70), App.Rotation())
sketch12.addGeometry(Part.LineSegment(App.Vector(-76, 26, 0), App.Vector(-76, -34, 0)), False)
sketch12.addGeometry(Part.LineSegment(App.Vector(-76, -34, 0), App.Vector(14, -34, 0)), False)
sketch12.addGeometry(Part.LineSegment(App.Vector(14, -34, 0), App.Vector(14, 26, 0)), False)
sketch12.addGeometry(Part.LineSegment(App.Vector(14, 26, 0), App.Vector(-76, 26, 0)), False)
sketch12.addConstraint(Sketcher.Constraint("Coincident", 0, 2, 1, 1))
sketch12.addConstraint(Sketcher.Constraint("Coincident", 1, 2, 2, 1))
sketch12.addConstraint(Sketcher.Constraint("Coincident", 2, 2, 3, 1))
sketch12.addConstraint(Sketcher.Constraint("Coincident", 3, 2, 0, 1))
sketch12.addConstraint(Sketcher.Constraint("Vertical", 0))
sketch12.addConstraint(Sketcher.Constraint("Horizontal", 1))
sketch12.addConstraint(Sketcher.Constraint("Vertical", 2))
sketch12.addConstraint(Sketcher.Constraint("Horizontal", 3))
sketch12.addConstraint(Sketcher.Constraint("DistanceX", 1, 1, 1, 2, Q("90 mm")))
sketch12.addConstraint(Sketcher.Constraint("DistanceY", 0, 2, 0, 1, Q("60 mm")))
sketch12.addConstraint(Sketcher.Constraint("DistanceX", 0, 2, -1, 1, Q("75.508902 mm")))
sketch12.addConstraint(Sketcher.Constraint("DistanceY", 0, 2, -1, 1, Q("34.410112 mm")))
pad3 = doc.addObject("PartDesign::Pad", "Pad002")
body.addObject(pad3)
pad3.Profile = sketch12
pad3.Length = 2

# Sketch on YZ plane
sketch13 = doc.addObject("Sketcher::SketchObject", "Sketch012")
body.addObject(sketch13)
sketch13.AttachmentSupport = (doc.YZ_Plane, [""])
sketch13.MapMode = "FlatFace"
sketch13.AttachmentOffset = App.Placement(App.Vector(0, 0, 14.491098), App.Rotation())
sketch13.addGeometry(Part.Circle(App.Vector(-5.2, 15, 0), App.Vector(0, 0, 1), 4), False)
sketch13.addGeometry(Part.Circle(App.Vector(-5.2, 57, 0), App.Vector(0, 0, 1), 4), False)
sketch13.addConstraint(Sketcher.Constraint("Equal", 0, 1))
sketch13.addConstraint(Sketcher.Constraint("Vertical", 0, 3, 1, 3))
sketch13.addConstraint(Sketcher.Constraint("Diameter", 0, Q("8 mm")))
sketch13.addConstraint(Sketcher.Constraint("DistanceY", -1, 1, 0, 3, Q("15 mm")))
sketch13.addConstraint(Sketcher.Constraint("DistanceY", -1, 1, 1, 3, Q("57 mm")))
sketch13.addConstraint(Sketcher.Constraint("DistanceX", 0, 3, -1, 1, Q("5.214152 mm")))
pocket10 = doc.addObject("PartDesign::Pocket", "Pocket009")
body.addObject(pocket10)
pocket10.Profile = sketch13
pocket10.Length = 10

# Sketch on XY plane
sketch14 = doc.addObject("Sketcher::SketchObject", "Sketch013")
body.addObject(sketch14)
sketch14.AttachmentSupport = (doc.XY_Plane, [""])
sketch14.MapMode = "FlatFace"
sketch14.AttachmentOffset = App.Placement(App.Vector(0, 0, 7), App.Rotation())
sketch14.addGeometry(Part.LineSegment(App.Vector(12, 24, 0), App.Vector(12, -32, 0)), False)
sketch14.addGeometry(Part.LineSegment(App.Vector(12, -32, 0), App.Vector(-74, -32, 0)), False)
sketch14.addGeometry(Part.LineSegment(App.Vector(-74, -32, 0), App.Vector(-74, 24, 0)), False)
sketch14.addGeometry(Part.LineSegment(App.Vector(-74, 24, 0), App.Vector(12, 24, 0)), False)
sketch14.addConstraint(Sketcher.Constraint("Coincident", 0, 2, 1, 1))
sketch14.addConstraint(Sketcher.Constraint("Coincident", 1, 2, 2, 1))
sketch14.addConstraint(Sketcher.Constraint("Coincident", 2, 2, 3, 1))
sketch14.addConstraint(Sketcher.Constraint("Coincident", 3, 2, 0, 1))
sketch14.addConstraint(Sketcher.Constraint("Vertical", 0))
sketch14.addConstraint(Sketcher.Constraint("Horizontal", 1))
sketch14.addConstraint(Sketcher.Constraint("Vertical", 2))
sketch14.addConstraint(Sketcher.Constraint("Horizontal", 3))
sketch14.addConstraint(Sketcher.Constraint("DistanceX", 1, 2, 1, 1, Q("86 mm")))
sketch14.addConstraint(Sketcher.Constraint("DistanceY", 0, 2, 0, 1, Q("56 mm")))
sketch14.addConstraint(Sketcher.Constraint("DistanceX", -1, 1, 0, 2, Q("12.491098 mm")))
sketch14.addConstraint(Sketcher.Constraint("DistanceY", 0, 2, -1, 1, Q("32.410112 mm")))
pocket11 = doc.addObject("PartDesign::Pocket", "Pocket010")
body.addObject(pocket11)
pocket11.Profile = sketch14
pocket11.Length = 63
pocket11.Reversed = True
doc.recompute()

fillet = doc.addObject("PartDesign::Fillet", "Fillet")
body.addObject(fillet)
fillet.Base = (pocket11, edges_at(pocket11, [(59.491, 22.99, 17.989)]))
fillet.Radius = 1
doc.recompute()

fillet2 = doc.addObject("PartDesign::Fillet", "Fillet001")
body.addObject(fillet2)
fillet2.Base = (fillet, edges_at(fillet, [(59.491, 22.99, 52.011)]))
fillet2.Radius = 1

doc.recompute()
